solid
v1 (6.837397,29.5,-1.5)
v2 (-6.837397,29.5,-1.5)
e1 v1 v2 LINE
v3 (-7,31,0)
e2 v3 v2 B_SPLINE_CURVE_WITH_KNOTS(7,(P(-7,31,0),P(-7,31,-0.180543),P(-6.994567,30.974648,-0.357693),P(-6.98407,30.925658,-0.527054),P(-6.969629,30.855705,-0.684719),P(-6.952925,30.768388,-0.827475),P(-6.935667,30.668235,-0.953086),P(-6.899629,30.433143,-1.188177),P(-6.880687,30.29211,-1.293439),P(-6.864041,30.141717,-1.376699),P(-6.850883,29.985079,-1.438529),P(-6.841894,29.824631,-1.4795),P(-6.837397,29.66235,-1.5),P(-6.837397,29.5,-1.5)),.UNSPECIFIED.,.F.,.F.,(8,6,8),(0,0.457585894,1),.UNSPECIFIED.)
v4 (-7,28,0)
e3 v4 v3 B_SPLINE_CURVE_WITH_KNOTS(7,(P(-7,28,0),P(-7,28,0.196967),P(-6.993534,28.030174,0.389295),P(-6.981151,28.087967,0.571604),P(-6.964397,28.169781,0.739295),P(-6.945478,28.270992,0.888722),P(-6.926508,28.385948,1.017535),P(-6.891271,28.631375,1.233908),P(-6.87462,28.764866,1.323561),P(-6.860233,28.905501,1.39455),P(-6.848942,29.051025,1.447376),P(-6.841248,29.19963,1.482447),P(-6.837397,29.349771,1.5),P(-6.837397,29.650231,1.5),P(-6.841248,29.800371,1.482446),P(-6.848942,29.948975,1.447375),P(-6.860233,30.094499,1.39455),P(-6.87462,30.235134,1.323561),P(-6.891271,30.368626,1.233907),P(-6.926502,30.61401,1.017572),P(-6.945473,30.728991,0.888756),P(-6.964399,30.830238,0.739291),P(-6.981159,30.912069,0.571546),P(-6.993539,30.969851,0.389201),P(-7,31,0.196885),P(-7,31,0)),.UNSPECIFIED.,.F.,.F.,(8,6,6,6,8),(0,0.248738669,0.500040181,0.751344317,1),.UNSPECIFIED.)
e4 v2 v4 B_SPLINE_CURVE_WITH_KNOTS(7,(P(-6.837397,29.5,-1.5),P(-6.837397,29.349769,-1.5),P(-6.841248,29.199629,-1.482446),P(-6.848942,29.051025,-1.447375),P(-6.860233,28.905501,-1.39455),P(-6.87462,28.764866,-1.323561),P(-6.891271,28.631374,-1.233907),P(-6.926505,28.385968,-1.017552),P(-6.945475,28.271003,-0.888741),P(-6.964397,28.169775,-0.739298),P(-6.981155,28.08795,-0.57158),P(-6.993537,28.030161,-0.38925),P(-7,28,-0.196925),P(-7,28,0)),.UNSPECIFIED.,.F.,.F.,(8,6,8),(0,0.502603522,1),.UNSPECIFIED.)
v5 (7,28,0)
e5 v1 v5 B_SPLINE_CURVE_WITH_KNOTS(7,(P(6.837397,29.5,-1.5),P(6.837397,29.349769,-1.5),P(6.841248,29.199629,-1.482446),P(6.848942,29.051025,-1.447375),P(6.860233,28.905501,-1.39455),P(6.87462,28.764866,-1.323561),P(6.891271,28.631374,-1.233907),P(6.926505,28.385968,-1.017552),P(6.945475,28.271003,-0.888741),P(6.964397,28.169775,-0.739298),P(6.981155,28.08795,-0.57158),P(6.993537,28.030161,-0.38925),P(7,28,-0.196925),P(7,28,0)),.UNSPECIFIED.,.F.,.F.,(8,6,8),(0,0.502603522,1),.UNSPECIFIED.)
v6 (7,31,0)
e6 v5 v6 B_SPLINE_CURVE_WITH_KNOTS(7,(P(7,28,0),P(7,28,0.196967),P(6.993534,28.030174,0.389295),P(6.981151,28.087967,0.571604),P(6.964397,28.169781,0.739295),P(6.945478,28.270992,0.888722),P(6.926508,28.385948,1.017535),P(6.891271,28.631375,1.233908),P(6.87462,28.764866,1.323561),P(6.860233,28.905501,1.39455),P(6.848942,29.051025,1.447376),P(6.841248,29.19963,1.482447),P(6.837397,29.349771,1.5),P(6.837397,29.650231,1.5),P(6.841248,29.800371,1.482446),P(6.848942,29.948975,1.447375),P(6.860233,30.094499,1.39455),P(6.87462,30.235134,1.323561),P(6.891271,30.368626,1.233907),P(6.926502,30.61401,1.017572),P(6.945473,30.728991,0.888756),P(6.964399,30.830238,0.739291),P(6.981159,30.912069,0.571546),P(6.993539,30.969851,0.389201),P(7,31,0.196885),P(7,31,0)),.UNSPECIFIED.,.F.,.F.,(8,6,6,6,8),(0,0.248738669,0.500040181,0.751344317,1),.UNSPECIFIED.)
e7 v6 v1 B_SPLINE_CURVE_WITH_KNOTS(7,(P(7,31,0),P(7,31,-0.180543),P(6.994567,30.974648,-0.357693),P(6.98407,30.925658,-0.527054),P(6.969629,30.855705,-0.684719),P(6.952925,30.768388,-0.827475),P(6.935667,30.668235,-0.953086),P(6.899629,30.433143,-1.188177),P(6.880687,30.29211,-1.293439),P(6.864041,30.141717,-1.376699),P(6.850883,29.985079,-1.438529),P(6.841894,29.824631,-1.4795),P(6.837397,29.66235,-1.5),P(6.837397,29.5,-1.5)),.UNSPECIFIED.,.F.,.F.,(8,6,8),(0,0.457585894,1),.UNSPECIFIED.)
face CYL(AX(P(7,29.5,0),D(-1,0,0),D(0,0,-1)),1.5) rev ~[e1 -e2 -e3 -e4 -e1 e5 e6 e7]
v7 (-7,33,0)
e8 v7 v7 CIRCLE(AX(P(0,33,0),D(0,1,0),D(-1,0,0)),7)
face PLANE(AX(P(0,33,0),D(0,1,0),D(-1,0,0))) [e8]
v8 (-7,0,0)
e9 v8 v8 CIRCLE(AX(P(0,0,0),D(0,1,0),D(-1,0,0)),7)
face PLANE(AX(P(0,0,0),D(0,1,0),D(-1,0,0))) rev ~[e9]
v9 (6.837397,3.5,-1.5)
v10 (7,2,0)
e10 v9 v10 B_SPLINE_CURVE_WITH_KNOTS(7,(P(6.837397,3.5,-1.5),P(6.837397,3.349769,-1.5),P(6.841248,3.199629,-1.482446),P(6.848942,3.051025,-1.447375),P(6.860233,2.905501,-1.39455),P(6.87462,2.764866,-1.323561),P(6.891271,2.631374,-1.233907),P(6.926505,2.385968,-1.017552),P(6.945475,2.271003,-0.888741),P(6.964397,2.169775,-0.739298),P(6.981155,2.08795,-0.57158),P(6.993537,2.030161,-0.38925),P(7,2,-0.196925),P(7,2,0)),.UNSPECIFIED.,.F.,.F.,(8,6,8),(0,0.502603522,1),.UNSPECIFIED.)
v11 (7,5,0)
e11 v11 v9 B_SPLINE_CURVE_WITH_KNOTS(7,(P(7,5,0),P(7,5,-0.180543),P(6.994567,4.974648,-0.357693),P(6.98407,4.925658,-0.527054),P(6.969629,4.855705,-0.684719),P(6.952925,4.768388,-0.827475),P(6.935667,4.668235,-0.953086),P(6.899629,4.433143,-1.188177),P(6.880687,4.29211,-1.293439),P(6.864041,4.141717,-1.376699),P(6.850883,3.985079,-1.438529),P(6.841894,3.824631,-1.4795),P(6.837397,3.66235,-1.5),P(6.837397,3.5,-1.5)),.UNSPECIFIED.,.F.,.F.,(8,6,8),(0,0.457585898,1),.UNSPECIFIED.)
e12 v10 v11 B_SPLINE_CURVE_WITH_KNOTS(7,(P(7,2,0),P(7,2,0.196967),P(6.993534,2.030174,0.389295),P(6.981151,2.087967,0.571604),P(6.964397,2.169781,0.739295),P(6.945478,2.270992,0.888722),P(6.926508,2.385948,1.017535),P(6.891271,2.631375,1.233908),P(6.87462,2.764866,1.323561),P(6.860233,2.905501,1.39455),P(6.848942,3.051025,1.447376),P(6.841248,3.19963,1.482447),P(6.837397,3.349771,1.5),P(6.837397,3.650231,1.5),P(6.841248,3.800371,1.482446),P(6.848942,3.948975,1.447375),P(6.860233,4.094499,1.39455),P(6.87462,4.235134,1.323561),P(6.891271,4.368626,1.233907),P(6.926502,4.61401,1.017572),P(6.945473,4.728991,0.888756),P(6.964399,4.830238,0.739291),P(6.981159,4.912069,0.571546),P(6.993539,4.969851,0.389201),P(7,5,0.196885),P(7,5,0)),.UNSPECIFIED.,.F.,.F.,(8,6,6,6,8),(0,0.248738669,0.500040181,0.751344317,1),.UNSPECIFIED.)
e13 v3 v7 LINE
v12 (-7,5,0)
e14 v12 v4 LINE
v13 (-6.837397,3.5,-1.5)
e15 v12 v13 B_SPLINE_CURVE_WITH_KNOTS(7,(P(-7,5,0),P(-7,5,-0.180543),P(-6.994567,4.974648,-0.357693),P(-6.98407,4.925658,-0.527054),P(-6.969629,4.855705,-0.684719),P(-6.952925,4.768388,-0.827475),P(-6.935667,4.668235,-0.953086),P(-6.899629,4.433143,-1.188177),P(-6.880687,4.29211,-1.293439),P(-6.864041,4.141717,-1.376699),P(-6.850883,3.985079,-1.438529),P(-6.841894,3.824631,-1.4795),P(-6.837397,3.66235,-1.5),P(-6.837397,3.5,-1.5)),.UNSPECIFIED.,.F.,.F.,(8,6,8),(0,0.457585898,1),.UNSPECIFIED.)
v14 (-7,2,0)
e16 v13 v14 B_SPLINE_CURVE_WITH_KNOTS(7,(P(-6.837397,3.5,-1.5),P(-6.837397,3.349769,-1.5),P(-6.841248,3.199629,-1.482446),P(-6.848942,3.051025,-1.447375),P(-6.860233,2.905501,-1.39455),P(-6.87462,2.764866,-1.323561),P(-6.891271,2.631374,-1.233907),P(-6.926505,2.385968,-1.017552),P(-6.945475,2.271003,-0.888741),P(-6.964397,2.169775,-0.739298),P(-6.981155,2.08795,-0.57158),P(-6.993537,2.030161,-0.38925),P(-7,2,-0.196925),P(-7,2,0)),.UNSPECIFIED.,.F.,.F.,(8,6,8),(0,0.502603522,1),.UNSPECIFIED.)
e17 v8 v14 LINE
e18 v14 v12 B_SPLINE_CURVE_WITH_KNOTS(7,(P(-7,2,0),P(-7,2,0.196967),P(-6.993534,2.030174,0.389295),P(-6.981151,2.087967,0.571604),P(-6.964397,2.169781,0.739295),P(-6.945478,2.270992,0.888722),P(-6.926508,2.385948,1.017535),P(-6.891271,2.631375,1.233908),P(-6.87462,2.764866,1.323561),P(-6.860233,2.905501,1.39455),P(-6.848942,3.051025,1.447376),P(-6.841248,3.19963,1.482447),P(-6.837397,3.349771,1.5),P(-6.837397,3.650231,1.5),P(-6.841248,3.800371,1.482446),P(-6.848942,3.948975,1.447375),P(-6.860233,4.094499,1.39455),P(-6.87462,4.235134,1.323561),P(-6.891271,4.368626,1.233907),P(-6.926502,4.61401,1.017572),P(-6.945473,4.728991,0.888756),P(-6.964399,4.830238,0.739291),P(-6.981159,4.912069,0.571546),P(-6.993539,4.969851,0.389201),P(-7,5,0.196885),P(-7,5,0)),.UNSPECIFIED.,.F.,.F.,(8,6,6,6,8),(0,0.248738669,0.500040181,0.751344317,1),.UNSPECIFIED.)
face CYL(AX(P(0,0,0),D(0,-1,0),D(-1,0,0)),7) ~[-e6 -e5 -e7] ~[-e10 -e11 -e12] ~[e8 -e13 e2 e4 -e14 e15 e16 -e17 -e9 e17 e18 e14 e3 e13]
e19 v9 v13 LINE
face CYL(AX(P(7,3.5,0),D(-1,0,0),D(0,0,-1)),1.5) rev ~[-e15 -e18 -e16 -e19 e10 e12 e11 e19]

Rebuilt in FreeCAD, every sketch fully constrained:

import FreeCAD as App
import Part
import Sketcher
from FreeCAD import Vector

doc = App.newDocument("Part")
body = doc.addObject("PartDesign::Body", "Body")

sketch1 = body.newObject("Sketcher::SketchObject", "Sketch")
sketch1.AttachmentSupport = (doc.getObject("XZ_Plane"), [""])
sketch1.MapMode = "FlatFace"
sketch1.addGeometry(Part.Circle(Vector(0, 0, 0), Vector(0, 0, 1), 7), False)
sketch1.addConstraint([
    Sketcher.Constraint("Coincident", 0, 3, -1, 1),
    Sketcher.Constraint("Diameter", 0, 14.0),
])
pad1 = body.newObject("PartDesign::Pad", "Pad")
pad1.Profile = sketch1
pad1.Length = 33
pad1.Reversed = True

sketch2 = body.newObject("Sketcher::SketchObject", "Sketch001")
sketch2.AttachmentSupport = (doc.getObject("YZ_Plane"), [""])
sketch2.MapMode = "FlatFace"
sketch2.AttachmentOffset = App.Placement(Vector(0, 0, 7), App.Rotation())
sketch2.addGeometry([
    Part.Circle(Vector(29.5, 0, 0), Vector(0, 0, 1), 1.5),
    Part.Circle(Vector(3.5, 0, 0), Vector(0, 0, 1), 1.5),
], False)
sketch2.addConstraint([
    Sketcher.Constraint("Equal", 0, 1),
    Sketcher.Constraint("PointOnObject", 0, 3, -1),
    Sketcher.Constraint("PointOnObject", 1, 3, -1),
    Sketcher.Constraint("Diameter", 0, 3.0),
    Sketcher.Constraint("DistanceX", 1, 3, 0, 3, 26.0),
    Sketcher.Constraint("DistanceX", -1, 1, 0, 3, 29.5),
])
doc.recompute()
hole = body.newObject("PartDesign::Hole", "Hole")
hole.Profile = sketch2
hole.ThreadType = "None"
hole.Diameter = 3
hole.DepthType = "ThroughAll"

doc.recompute()
